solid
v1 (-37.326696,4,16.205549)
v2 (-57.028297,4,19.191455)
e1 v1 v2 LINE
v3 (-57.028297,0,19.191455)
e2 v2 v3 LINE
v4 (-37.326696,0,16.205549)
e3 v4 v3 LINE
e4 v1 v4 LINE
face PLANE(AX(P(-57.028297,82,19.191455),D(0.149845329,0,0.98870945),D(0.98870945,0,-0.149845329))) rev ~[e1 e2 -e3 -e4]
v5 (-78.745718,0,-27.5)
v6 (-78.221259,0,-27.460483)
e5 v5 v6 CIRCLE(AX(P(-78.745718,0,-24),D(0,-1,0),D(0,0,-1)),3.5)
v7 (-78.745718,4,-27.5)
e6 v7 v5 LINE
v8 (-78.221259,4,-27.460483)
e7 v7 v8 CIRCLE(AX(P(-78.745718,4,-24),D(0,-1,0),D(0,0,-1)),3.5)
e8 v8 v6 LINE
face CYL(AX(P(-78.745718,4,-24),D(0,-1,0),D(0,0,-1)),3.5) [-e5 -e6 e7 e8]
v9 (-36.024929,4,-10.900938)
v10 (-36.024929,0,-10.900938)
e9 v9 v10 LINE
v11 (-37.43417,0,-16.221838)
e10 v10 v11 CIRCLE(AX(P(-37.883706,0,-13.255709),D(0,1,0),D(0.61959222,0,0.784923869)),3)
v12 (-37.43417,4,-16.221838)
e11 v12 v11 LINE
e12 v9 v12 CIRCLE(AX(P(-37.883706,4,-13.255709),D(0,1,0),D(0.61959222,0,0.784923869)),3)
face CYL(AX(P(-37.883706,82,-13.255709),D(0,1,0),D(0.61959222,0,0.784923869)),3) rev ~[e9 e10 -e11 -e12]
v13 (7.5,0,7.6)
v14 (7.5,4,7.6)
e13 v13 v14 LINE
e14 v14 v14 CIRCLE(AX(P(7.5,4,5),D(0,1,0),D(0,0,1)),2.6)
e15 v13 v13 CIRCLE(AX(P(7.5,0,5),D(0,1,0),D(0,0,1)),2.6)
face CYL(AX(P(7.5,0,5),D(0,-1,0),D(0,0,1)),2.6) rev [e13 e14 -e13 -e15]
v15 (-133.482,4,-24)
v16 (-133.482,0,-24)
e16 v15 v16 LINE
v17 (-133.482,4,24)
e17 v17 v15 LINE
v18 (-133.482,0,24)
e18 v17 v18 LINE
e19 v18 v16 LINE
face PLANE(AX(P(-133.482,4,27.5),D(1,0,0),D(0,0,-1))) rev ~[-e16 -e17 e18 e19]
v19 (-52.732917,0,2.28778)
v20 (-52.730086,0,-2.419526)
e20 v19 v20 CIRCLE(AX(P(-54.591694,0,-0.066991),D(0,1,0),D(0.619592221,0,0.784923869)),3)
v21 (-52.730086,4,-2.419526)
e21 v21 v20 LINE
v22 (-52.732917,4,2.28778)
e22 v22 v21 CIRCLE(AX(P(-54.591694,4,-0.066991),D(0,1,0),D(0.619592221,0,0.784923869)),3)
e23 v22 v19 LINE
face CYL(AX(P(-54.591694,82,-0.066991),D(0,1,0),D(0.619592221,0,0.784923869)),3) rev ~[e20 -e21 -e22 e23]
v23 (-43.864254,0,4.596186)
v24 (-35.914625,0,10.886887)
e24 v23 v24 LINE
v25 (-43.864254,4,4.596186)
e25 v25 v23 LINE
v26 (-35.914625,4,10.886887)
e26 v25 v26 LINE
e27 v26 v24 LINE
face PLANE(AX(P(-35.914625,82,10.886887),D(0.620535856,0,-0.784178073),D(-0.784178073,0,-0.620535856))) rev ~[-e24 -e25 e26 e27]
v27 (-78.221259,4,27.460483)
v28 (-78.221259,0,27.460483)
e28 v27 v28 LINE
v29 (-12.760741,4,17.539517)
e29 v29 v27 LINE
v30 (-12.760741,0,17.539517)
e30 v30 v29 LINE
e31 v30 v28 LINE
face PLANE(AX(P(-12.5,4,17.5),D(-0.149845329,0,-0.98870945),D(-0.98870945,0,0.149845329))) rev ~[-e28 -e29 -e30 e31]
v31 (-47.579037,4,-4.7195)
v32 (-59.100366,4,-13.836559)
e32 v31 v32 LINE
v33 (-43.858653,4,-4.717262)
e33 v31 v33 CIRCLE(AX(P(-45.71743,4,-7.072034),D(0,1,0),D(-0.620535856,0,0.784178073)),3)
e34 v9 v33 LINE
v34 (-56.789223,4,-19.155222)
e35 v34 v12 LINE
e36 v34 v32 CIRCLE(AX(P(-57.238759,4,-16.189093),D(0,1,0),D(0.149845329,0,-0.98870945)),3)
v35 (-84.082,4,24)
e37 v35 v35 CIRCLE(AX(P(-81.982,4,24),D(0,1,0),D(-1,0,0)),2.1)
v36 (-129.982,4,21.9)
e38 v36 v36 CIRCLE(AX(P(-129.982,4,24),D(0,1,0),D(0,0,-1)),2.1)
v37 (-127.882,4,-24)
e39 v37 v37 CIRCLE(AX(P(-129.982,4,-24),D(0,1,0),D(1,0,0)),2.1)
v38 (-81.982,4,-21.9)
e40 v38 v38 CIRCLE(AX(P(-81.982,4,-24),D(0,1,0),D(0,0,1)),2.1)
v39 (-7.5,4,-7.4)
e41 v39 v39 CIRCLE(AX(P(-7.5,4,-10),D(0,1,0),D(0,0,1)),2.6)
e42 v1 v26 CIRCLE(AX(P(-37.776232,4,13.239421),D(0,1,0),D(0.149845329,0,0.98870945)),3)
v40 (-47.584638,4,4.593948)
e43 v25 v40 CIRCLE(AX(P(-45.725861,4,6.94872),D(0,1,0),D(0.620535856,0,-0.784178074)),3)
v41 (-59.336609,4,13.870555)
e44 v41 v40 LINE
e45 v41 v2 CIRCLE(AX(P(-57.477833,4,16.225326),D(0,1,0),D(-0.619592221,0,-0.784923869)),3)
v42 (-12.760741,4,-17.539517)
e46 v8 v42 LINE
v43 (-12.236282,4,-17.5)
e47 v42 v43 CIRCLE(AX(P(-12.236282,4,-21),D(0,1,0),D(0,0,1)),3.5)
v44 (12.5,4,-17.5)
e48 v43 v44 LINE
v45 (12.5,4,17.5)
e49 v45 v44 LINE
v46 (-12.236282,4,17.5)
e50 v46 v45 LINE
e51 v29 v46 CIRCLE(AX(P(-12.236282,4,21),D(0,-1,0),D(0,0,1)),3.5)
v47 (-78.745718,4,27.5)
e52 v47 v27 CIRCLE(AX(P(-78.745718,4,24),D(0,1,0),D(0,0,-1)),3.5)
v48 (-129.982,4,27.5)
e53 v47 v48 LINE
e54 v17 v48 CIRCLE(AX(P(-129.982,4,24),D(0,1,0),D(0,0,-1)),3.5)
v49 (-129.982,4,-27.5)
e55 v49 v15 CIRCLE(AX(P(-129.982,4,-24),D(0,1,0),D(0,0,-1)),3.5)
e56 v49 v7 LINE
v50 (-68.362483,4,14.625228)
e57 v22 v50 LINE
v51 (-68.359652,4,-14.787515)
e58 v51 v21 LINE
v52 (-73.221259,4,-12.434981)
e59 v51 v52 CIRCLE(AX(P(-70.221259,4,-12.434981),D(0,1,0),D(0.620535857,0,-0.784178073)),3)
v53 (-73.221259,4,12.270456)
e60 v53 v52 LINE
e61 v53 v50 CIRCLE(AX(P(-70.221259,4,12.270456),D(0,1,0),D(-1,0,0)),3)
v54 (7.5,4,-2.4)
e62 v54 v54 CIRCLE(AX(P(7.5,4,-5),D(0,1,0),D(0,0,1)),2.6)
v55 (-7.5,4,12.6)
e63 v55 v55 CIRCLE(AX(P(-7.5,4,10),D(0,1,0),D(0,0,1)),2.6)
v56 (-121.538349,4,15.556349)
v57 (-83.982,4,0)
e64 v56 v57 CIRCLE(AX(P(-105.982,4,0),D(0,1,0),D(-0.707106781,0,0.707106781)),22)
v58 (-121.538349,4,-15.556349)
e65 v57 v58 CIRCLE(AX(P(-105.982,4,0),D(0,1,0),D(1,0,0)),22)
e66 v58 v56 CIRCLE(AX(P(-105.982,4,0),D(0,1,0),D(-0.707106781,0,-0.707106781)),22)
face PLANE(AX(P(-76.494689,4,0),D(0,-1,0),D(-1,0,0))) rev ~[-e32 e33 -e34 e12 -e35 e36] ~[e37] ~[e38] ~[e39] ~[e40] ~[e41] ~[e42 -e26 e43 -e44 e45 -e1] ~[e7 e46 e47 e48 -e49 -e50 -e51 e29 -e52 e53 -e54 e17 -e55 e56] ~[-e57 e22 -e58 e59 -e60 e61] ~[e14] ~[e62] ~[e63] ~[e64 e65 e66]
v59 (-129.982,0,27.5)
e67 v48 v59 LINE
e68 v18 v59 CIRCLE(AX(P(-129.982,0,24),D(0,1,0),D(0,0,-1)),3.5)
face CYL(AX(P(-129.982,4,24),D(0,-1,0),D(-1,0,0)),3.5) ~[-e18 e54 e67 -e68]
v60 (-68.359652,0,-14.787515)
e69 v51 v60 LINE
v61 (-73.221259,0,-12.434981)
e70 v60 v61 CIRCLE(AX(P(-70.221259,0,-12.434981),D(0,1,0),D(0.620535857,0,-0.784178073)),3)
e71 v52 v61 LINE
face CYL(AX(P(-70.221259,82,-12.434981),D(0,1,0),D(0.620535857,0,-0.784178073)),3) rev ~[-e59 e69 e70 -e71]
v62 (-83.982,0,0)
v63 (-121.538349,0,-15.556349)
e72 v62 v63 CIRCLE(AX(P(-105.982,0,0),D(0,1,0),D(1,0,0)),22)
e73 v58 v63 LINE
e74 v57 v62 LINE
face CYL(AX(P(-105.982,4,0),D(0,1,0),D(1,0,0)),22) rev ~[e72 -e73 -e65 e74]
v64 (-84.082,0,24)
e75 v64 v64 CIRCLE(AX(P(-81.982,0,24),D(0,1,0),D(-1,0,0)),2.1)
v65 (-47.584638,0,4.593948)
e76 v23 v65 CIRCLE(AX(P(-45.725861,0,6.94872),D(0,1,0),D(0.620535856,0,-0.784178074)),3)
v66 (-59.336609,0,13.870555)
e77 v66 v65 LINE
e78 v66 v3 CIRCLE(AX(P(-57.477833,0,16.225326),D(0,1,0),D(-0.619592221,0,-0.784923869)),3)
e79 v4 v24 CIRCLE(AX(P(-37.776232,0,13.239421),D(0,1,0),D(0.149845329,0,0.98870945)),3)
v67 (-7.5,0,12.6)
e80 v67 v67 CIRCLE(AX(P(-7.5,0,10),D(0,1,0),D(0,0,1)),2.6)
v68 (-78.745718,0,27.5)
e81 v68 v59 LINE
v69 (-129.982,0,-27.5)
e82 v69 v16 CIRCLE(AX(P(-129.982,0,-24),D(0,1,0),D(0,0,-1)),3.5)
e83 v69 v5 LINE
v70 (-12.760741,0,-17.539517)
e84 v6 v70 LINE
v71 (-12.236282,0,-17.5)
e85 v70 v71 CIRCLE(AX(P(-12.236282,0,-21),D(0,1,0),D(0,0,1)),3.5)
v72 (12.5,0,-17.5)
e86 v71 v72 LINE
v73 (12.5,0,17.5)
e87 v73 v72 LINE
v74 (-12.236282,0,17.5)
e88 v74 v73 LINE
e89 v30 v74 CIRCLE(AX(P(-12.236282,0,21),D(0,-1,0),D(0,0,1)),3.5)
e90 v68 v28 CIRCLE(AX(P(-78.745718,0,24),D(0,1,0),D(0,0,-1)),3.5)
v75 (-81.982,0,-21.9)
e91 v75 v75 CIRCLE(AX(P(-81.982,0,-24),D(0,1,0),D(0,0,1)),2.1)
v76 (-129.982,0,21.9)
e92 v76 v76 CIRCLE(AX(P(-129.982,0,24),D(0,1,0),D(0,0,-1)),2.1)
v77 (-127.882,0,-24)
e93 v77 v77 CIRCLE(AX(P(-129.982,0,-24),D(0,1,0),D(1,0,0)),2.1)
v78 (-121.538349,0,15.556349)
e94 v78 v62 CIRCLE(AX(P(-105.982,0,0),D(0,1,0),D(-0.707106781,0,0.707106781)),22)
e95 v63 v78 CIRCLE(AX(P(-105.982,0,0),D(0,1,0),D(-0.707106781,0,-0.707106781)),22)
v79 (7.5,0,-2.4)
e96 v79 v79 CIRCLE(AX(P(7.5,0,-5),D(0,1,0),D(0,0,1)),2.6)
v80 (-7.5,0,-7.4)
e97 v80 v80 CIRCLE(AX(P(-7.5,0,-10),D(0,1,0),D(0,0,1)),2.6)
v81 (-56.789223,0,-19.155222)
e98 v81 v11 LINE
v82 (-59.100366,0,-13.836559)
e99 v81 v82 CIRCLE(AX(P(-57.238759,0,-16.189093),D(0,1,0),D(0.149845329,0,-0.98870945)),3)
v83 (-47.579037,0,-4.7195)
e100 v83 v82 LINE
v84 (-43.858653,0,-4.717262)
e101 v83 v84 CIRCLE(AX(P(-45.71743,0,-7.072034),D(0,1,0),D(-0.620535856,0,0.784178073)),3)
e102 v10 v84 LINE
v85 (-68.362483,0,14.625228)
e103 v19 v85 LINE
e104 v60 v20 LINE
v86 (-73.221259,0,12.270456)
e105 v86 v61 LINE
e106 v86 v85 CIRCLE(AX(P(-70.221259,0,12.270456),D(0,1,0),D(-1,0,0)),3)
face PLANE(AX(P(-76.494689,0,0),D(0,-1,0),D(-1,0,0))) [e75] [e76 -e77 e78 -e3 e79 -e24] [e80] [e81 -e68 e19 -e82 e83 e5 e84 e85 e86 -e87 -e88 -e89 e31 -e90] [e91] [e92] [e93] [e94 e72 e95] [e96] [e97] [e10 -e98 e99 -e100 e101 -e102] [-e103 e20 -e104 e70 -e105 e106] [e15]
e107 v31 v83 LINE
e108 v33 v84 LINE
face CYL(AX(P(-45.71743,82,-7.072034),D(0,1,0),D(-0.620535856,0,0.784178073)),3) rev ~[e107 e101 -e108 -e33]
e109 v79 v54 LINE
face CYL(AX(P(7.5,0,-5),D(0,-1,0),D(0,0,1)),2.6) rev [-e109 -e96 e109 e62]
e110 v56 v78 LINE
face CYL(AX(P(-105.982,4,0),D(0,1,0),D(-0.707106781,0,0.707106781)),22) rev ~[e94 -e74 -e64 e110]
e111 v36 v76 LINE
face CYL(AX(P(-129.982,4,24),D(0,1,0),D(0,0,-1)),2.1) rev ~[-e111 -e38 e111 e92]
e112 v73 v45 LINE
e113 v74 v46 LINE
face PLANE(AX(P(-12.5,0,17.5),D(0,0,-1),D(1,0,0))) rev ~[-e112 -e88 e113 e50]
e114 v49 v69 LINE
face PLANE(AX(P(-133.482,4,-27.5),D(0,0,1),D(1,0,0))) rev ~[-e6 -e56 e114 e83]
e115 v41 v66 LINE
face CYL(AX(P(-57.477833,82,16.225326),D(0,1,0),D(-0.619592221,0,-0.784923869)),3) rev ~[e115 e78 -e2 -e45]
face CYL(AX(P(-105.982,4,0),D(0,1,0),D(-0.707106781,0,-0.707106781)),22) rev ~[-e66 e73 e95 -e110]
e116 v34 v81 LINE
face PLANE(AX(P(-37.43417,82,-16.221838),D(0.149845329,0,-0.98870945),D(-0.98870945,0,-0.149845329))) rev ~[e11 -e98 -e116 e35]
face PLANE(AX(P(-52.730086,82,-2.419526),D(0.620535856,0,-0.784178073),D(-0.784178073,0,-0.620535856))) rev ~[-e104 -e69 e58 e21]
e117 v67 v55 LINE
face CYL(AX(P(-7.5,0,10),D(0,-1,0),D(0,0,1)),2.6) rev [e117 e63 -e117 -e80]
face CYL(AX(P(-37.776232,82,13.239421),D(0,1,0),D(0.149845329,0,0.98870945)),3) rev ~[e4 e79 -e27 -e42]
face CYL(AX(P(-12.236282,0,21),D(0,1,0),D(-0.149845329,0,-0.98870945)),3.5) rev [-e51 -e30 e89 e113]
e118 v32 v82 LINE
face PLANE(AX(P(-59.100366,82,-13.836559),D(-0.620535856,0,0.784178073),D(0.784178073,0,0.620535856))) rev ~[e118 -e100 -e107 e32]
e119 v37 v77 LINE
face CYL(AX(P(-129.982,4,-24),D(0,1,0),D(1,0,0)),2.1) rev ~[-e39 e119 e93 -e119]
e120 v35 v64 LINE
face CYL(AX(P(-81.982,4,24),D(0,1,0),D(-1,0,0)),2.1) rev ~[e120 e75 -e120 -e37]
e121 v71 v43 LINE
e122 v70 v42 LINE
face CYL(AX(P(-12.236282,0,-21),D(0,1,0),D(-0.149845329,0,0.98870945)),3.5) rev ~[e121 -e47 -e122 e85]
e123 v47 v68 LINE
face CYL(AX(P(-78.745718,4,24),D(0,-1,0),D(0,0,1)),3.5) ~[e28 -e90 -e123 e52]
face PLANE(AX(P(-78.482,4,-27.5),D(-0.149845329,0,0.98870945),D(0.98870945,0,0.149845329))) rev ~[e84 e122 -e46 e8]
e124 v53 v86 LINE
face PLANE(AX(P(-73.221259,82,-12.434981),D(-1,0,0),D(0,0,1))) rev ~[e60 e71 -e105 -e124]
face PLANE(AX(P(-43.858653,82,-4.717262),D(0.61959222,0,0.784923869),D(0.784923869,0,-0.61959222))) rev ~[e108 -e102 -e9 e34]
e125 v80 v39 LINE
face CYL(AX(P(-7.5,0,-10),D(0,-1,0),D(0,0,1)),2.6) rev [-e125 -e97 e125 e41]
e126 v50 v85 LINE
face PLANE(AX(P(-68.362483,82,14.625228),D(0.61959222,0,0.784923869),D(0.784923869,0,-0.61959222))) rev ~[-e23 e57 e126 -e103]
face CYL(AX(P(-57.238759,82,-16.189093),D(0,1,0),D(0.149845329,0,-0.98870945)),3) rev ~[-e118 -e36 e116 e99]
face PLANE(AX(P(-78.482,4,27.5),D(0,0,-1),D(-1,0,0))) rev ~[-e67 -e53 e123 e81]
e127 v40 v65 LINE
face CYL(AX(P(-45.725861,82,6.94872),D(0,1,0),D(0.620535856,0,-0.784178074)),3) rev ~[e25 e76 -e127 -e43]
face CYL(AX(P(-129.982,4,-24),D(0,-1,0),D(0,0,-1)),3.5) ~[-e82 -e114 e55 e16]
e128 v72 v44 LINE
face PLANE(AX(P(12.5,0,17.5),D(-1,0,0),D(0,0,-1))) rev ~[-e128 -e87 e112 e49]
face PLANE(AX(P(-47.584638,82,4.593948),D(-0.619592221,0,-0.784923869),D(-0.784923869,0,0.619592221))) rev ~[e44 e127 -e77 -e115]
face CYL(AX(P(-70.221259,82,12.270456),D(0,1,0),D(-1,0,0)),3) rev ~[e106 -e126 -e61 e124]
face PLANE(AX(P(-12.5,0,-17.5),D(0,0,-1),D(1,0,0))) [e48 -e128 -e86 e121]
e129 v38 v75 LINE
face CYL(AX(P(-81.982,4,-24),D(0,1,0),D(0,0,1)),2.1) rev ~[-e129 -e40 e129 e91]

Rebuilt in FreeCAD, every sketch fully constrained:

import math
import FreeCAD as App
import Part
import Sketcher

V = App.Vector


def edges_at(feature, points):
    """Names of the edges that pass closest to the given points."""
    edges = feature.Shape.Edges
    near = lambda p: min(range(len(edges)), key=lambda i: edges[i].distToShape(Part.Vertex(*p))[0])
    return sorted({f"Edge{near(p) + 1}" for p in points})

doc = App.newDocument("Part")
body = doc.addObject("PartDesign::Body", "Body")

# Sketch on XZ plane
sketch1 = body.newObject("Sketcher::SketchObject", "Sketch")
sketch1.AttachmentSupport = (doc.getObject("XZ_Plane"), [""])
sketch1.MapMode = "FlatFace"
sketch1.addGeometry([
    Part.LineSegment(V(-12.5, -17.5, 0), V(-12.5, 17.5, 0)),  # 0
    Part.LineSegment(V(-12.5, 17.5, 0), V(12.5, 17.5, 0)),  # 1
    Part.LineSegment(V(12.5, 17.5, 0), V(12.5, -17.5, 0)),  # 2
    Part.LineSegment(V(12.5, -17.5, 0), V(-12.5, -17.5, 0)),  # 3
    Part.Circle(V(-7.5, 10, 0), V(0, 0, 1), 2.6),  # 4
    Part.Circle(V(7.5, 5, 0), V(0, 0, 1), 2.6),  # 5
    Part.Circle(V(-7.5, -10, 0), V(0, 0, 1), 2.6),  # 6
    Part.Circle(V(7.5, -5, 0), V(0, 0, 1), 2.6),  # 7
], False)
sketch1.addConstraint([
    Sketcher.Constraint("Coincident", 0, 2, 1, 1),
    Sketcher.Constraint("Coincident", 1, 2, 2, 1),
    Sketcher.Constraint("Coincident", 2, 2, 3, 1),
    Sketcher.Constraint("Coincident", 3, 2, 0, 1),
    Sketcher.Constraint("Vertical", 0),
    Sketcher.Constraint("Horizontal", 1),
    Sketcher.Constraint("Vertical", 2),
    Sketcher.Constraint("Horizontal", 3),
    Sketcher.Constraint("Equal", 4, 5),
    Sketcher.Constraint("Equal", 5, 6),
    Sketcher.Constraint("Equal", 6, 7),
    Sketcher.Constraint("Symmetric", 0, 2, 2, 2, -1, 1),
    Sketcher.Constraint("Symmetric", 4, 3, 6, 3, -1),
    Sketcher.Constraint("Symmetric", 5, 3, 7, 3, -1),
    Sketcher.Constraint("Diameter", 4, 5.2),
    Sketcher.Constraint("DistanceX", 1, 1, 1, 2, 25.0),
    Sketcher.Constraint("DistanceY", 0, 1, 0, 2, 35.0),
    Sketcher.Constraint("DistanceY", -1, 1, 4, 3, 10.0),
    Sketcher.Constraint("DistanceY", -1, 1, 5, 3, 5.0),
    Sketcher.Constraint("DistanceX", 4, 3, 5, 3, 15.0),
    Sketcher.Constraint("DistanceX", 0, 2, 4, 3, 5.0),
])
pad1 = body.newObject("PartDesign::Pad", "Pad")
pad1.Profile = sketch1
pad1.Length = 4
pad1.Reversed = True
body2 = doc.addObject("PartDesign::Body", "Body001")

# Sketch on XZ plane
sketch2 = body2.newObject("Sketcher::SketchObject", "Sketch001")
sketch2.AttachmentSupport = (doc.getObject("XZ_Plane001"), [""])
sketch2.MapMode = "FlatFace"
sketch2.AttachmentOffset = App.Placement(V(0, 0, -4), App.Rotation())
sketch2.addGeometry([
    Part.LineSegment(V(-78, -28, 0), V(-133, -28, 0)),  # 0
    Part.LineSegment(V(-133, -28, 0), V(-133, 28, 0)),  # 1
    Part.LineSegment(V(-133, 28, 0), V(-78, 28, 0)),  # 2
    Part.LineSegment(V(-78, 28, 0), V(-12, 18, 0)),  # 3
    Part.LineSegment(V(-12, 18, 0), V(-12, -18, 0)),  # 4
    Part.LineSegment(V(-12, -18, 0), V(-78, -28, 0)),  # 5
], False)
sketch2.addConstraint([
    Sketcher.Constraint("Coincident", 0, 2, 1, 1),
    Sketcher.Constraint("Coincident", 1, 2, 2, 1),
    Sketcher.Constraint("Coincident", 2, 2, 3, 1),
    Sketcher.Constraint("Coincident", 3, 2, 4, 1),
    Sketcher.Constraint("Coincident", 4, 2, 5, 1),
    Sketcher.Constraint("Coincident", 5, 2, 0, 1),
    Sketcher.Constraint("Horizontal", 0),
    Sketcher.Constraint("Vertical", 1),
    Sketcher.Constraint("Horizontal", 2),
    Sketcher.Constraint("Vertical", 4),
    Sketcher.Constraint("Symmetric", 2, 2, 5, 2, -1),
    Sketcher.Constraint("Equal", 2, 1),
    Sketcher.Constraint("Equal", 3, 5),
    Sketcher.Constraint("DistanceX", 0, 2, 0, 1, 55.0),
    Sketcher.Constraint("DistanceY", 4, 2, 4, 1, 35.0),
    Sketcher.Constraint("DistanceX", 3, 2, -1, 1, 12.5),
    Sketcher.Constraint("DistanceX", 0, 2, -1, 1, 133.482),
])
pad2 = body2.newObject("PartDesign::Pad", "Pad001")
pad2.Profile = sketch2
pad2.Length = 4
doc.recompute()

boolean = body.newObject("PartDesign::Boolean", "Boolean")
boolean.Type = "Fuse"
boolean.addObjects([body2])
doc.recompute()

fillet = body.newObject("PartDesign::Fillet", "Fillet")
fillet.Base = (boolean, edges_at(boolean, [
    (-12.5, 2, -17.5),
    (-12.5, 2, 17.5),
    (-78.482, 2, 27.5),
    (-133.482, 2, 27.5),
    (-133.482, 2, -27.5),
    (-78.482, 2, -27.5),
]))
fillet.Radius = 3.5

# Sketch on XZ plane
sketch3 = body.newObject("Sketcher::SketchObject", "Sketch002")
sketch3.AttachmentSupport = (doc.getObject("XZ_Plane"), [""])
sketch3.MapMode = "FlatFace"
sketch3.AttachmentOffset = App.Placement(V(0, 0, -4), App.Rotation())
sketch3.addGeometry([
    Part.ArcOfCircle(Part.Circle(V(-106, 0, 0), V(0, 0, 1), 22), math.radians(-135), math.radians(0)),
    Part.ArcOfCircle(Part.Circle(V(-106, 0, 0), V(0, 0, 1), 22), math.radians(135), math.radians(225)),
    Part.ArcOfCircle(Part.Circle(V(-106, 0, 0), V(0, 0, 1), 22), math.radians(0), math.radians(135)),
], False)
sketch3.addConstraint([
    Sketcher.Constraint("Tangent", 0, 1, 1, 2),
    Sketcher.Constraint("Tangent", 1, 1, 2, 2),
    Sketcher.Constraint("Tangent", 2, 1, 0, 2),
    Sketcher.Constraint("Symmetric", 0, 1, 1, 1, -1),
    Sketcher.Constraint("PointOnObject", 2, 1, -1),
    Sketcher.Constraint("Radius", 0, 22.0),
    Sketcher.Constraint("DistanceX", 0, 3, -1, 1, 105.982),
    Sketcher.Constraint("DistanceY", 0, 1, 1, 1, 31.112698),
])
pocket1 = body.newObject("PartDesign::Pocket", "Pocket")
pocket1.Profile = sketch3
pocket1.Length = 10
pocket1.Reversed = True

# Sketch on XZ plane
sketch4 = body.newObject("Sketcher::SketchObject", "Sketch003")
sketch4.AttachmentSupport = (doc.getObject("XZ_Plane"), [""])
sketch4.MapMode = "FlatFace"
sketch4.AttachmentOffset = App.Placement(V(0, 0, -4), App.Rotation())
sketch4.addGeometry(Part.Circle(V(-82, -24, 0), V(0, 0, 1), 2.1), False)
sketch4.addConstraint([
    Sketcher.Constraint("Diameter", 0, 4.2),
    Sketcher.Constraint("DistanceY", 0, 3, -1, 1, 24.0),
    Sketcher.Constraint("DistanceX", 0, 3, -1, 1, 81.982),
])
pocket2 = body.newObject("PartDesign::Pocket", "Pocket001")
pocket2.Profile = sketch4
pocket2.Length = 10
pocket2.Reversed = True
doc.recompute()

datumline = body.newObject("PartDesign::Line", "DatumLine")
datumline.Placement = App.Placement(V(-105.982, 0, 0), App.Rotation(V(0, 0, 1), V(0, 1, 0)))
polarpattern = body.newObject("PartDesign::PolarPattern", "PolarPattern")
polarpattern.Originals = [pocket2]
polarpattern.Axis = (datumline, [""])
polarpattern.Angle = 360
polarpattern.Occurrences = 4
body.Tip = polarpattern

# Sketch on XZ plane
sketch5 = body.newObject("Sketcher::SketchObject", "Sketch004")
sketch5.AttachmentSupport = (doc.getObject("XZ_Plane"), [""])
sketch5.MapMode = "FlatFace"
sketch5.AttachmentOffset = App.Placement(V(0, 0, -82), App.Rotation())
sketch5.addGeometry([
    Part.LineSegment(V(-43.9, -4.7, 0), V(-36, -10.9, 0)),  # 0
    Part.ArcOfCircle(Part.Circle(V(-37.9, -13.3, 0), V(0, 0, 1), 3), math.radians(-81), math.radians(52)),  # 1
    Part.LineSegment(V(-37.4, -16.2, 0), V(-56.8, -19.2, 0)),  # 2
    Part.ArcOfCircle(Part.Circle(V(-57.2, -16.2, 0), V(0, 0, 1), 3), math.radians(128), math.radians(279)),  # 3
    Part.LineSegment(V(-59.1, -13.8, 0), V(-47.6, -4.7, 0)),  # 4
    Part.ArcOfCircle(Part.Circle(V(-45.7, -7.1, 0), V(0, 0, 1), 3), math.radians(52), math.radians(128)),  # 5
    Part.LineSegment(V(-35.9, 10.9, 0), V(-43.9, 4.6, 0)),  # 6
    Part.ArcOfCircle(Part.Circle(V(-45.7, 6.9, 0), V(0, 0, 1), 3), math.radians(-128), math.radians(-52)),  # 7
    Part.LineSegment(V(-47.6, 4.6, 0), V(-59.3, 13.9, 0)),  # 8
    Part.ArcOfCircle(Part.Circle(V(-57.5, 16.2, 0), V(0, 0, 1), 3), math.radians(81), math.radians(232)),  # 9
    Part.LineSegment(V(-57, 19.2, 0), V(-37.3, 16.2, 0)),  # 10
    Part.ArcOfCircle(Part.Circle(V(-37.8, 13.2, 0), V(0, 0, 1), 3), math.radians(-52), math.radians(81)),  # 11
    Part.LineSegment(V(-68.4, 14.6, 0), V(-52.7, 2.3, 0)),  # 12
    Part.ArcOfCircle(Part.Circle(V(-54.6, -0.1, 0), V(0, 0, 1), 3), math.radians(-52), math.radians(52)),  # 13
    Part.LineSegment(V(-52.7, -2.4, 0), V(-68.4, -14.8, 0)),  # 14
    Part.ArcOfCircle(Part.Circle(V(-70.2, -12.4, 0), V(0, 0, 1), 3), math.radians(180), math.radians(308)),  # 15
    Part.LineSegment(V(-73.2, -12.4, 0), V(-73.2, 12.3, 0)),  # 16
    Part.ArcOfCircle(Part.Circle(V(-70.2, 12.3, 0), V(0, 0, 1), 3), math.radians(52), math.radians(180)),  # 17
], False)
sketch5.addConstraint([
    Sketcher.Constraint("Tangent", 0, 2, 1, 2),
    Sketcher.Constraint("Tangent", 1, 1, 2, 1),
    Sketcher.Constraint("Tangent", 2, 2, 3, 2),
    Sketcher.Constraint("Tangent", 3, 1, 4, 1),
    Sketcher.Constraint("Tangent", 4, 2, 5, 2),
    Sketcher.Constraint("Tangent", 5, 1, 0, 1),
    Sketcher.Constraint("Tangent", 6, 2, 7, 2),
    Sketcher.Constraint("Tangent", 7, 1, 8, 1),
    Sketcher.Constraint("Tangent", 8, 2, 9, 2),
    Sketcher.Constraint("Tangent", 9, 1, 10, 1),
    Sketcher.Constraint("Tangent", 10, 2, 11, 2),
    Sketcher.Constraint("Tangent", 11, 1, 6, 1),
    Sketcher.Constraint("Tangent", 12, 2, 13, 2),
    Sketcher.Constraint("Tangent", 13, 1, 14, 1),
    Sketcher.Constraint("Tangent", 14, 2, 15, 2),
    Sketcher.Constraint("Tangent", 15, 1, 16, 1),
    Sketcher.Constraint("Tangent", 16, 2, 17, 2),
    Sketcher.Constraint("Tangent", 17, 1, 12, 1),
    Sketcher.Constraint("Vertical", 16),
    Sketcher.Constraint("Equal", 1, 3),
    Sketcher.Constraint("Equal", 3, 5),
    Sketcher.Constraint("Equal", 5, 7),
    Sketcher.Constraint("Equal", 7, 9),
    Sketcher.Constraint("Equal", 9, 11),
    Sketcher.Constraint("Equal", 11, 13),
    Sketcher.Constraint("Equal", 13, 15),
    Sketcher.Constraint("Equal", 15, 17),
    Sketcher.Constraint("Parallel", 4, 6),
    Sketcher.Constraint("Parallel", 0, 8),
    Sketcher.Constraint("Parallel", 8, 12),
    Sketcher.Constraint("Parallel", 6, 14),
    Sketcher.Constraint("Radius", 1, 3.0),
    Sketcher.Constraint("DistanceY", 17, 3, 9, 1, 6.920999),
    Sketcher.Constraint("DistanceY", 4, 2, -1, 1, 4.7195),
    Sketcher.Constraint("DistanceY", 7, 3, 11, 3, 6.290701),
    Sketcher.Constraint("DistanceX", 9, 3, 11, 3, 19.701601),
    Sketcher.Constraint("DistanceY", 3, 3, 13, 3, 16.122102),
    Sketcher.Constraint("DistanceX", 15, 3, 3, 3, 12.982501),
    Sketcher.Constraint("DistanceY", 15, 3, 7, 3, 19.3837),
    Sketcher.Constraint("DistanceX", 5, 3, 0, 2, 9.6925),
    Sketcher.Constraint("DistanceY", 1, 1, 0, 2, 5.3209),
    Sketcher.Constraint("DistanceX", 6, 2, 5, 1, 0.005601),
    Sketcher.Constraint("DistanceY", 17, 3, 8, 2, 1.600099),
    Sketcher.Constraint("Distance", 6, 10.137531),
    Sketcher.Constraint("DistanceX", 3, 3, -1, 1, 57.238759),
])
pocket3 = body.newObject("PartDesign::Pocket", "Pocket002")
pocket3.Profile = sketch5
pocket3.Length = 163
pocket3.Reversed = True

doc.recompute()
